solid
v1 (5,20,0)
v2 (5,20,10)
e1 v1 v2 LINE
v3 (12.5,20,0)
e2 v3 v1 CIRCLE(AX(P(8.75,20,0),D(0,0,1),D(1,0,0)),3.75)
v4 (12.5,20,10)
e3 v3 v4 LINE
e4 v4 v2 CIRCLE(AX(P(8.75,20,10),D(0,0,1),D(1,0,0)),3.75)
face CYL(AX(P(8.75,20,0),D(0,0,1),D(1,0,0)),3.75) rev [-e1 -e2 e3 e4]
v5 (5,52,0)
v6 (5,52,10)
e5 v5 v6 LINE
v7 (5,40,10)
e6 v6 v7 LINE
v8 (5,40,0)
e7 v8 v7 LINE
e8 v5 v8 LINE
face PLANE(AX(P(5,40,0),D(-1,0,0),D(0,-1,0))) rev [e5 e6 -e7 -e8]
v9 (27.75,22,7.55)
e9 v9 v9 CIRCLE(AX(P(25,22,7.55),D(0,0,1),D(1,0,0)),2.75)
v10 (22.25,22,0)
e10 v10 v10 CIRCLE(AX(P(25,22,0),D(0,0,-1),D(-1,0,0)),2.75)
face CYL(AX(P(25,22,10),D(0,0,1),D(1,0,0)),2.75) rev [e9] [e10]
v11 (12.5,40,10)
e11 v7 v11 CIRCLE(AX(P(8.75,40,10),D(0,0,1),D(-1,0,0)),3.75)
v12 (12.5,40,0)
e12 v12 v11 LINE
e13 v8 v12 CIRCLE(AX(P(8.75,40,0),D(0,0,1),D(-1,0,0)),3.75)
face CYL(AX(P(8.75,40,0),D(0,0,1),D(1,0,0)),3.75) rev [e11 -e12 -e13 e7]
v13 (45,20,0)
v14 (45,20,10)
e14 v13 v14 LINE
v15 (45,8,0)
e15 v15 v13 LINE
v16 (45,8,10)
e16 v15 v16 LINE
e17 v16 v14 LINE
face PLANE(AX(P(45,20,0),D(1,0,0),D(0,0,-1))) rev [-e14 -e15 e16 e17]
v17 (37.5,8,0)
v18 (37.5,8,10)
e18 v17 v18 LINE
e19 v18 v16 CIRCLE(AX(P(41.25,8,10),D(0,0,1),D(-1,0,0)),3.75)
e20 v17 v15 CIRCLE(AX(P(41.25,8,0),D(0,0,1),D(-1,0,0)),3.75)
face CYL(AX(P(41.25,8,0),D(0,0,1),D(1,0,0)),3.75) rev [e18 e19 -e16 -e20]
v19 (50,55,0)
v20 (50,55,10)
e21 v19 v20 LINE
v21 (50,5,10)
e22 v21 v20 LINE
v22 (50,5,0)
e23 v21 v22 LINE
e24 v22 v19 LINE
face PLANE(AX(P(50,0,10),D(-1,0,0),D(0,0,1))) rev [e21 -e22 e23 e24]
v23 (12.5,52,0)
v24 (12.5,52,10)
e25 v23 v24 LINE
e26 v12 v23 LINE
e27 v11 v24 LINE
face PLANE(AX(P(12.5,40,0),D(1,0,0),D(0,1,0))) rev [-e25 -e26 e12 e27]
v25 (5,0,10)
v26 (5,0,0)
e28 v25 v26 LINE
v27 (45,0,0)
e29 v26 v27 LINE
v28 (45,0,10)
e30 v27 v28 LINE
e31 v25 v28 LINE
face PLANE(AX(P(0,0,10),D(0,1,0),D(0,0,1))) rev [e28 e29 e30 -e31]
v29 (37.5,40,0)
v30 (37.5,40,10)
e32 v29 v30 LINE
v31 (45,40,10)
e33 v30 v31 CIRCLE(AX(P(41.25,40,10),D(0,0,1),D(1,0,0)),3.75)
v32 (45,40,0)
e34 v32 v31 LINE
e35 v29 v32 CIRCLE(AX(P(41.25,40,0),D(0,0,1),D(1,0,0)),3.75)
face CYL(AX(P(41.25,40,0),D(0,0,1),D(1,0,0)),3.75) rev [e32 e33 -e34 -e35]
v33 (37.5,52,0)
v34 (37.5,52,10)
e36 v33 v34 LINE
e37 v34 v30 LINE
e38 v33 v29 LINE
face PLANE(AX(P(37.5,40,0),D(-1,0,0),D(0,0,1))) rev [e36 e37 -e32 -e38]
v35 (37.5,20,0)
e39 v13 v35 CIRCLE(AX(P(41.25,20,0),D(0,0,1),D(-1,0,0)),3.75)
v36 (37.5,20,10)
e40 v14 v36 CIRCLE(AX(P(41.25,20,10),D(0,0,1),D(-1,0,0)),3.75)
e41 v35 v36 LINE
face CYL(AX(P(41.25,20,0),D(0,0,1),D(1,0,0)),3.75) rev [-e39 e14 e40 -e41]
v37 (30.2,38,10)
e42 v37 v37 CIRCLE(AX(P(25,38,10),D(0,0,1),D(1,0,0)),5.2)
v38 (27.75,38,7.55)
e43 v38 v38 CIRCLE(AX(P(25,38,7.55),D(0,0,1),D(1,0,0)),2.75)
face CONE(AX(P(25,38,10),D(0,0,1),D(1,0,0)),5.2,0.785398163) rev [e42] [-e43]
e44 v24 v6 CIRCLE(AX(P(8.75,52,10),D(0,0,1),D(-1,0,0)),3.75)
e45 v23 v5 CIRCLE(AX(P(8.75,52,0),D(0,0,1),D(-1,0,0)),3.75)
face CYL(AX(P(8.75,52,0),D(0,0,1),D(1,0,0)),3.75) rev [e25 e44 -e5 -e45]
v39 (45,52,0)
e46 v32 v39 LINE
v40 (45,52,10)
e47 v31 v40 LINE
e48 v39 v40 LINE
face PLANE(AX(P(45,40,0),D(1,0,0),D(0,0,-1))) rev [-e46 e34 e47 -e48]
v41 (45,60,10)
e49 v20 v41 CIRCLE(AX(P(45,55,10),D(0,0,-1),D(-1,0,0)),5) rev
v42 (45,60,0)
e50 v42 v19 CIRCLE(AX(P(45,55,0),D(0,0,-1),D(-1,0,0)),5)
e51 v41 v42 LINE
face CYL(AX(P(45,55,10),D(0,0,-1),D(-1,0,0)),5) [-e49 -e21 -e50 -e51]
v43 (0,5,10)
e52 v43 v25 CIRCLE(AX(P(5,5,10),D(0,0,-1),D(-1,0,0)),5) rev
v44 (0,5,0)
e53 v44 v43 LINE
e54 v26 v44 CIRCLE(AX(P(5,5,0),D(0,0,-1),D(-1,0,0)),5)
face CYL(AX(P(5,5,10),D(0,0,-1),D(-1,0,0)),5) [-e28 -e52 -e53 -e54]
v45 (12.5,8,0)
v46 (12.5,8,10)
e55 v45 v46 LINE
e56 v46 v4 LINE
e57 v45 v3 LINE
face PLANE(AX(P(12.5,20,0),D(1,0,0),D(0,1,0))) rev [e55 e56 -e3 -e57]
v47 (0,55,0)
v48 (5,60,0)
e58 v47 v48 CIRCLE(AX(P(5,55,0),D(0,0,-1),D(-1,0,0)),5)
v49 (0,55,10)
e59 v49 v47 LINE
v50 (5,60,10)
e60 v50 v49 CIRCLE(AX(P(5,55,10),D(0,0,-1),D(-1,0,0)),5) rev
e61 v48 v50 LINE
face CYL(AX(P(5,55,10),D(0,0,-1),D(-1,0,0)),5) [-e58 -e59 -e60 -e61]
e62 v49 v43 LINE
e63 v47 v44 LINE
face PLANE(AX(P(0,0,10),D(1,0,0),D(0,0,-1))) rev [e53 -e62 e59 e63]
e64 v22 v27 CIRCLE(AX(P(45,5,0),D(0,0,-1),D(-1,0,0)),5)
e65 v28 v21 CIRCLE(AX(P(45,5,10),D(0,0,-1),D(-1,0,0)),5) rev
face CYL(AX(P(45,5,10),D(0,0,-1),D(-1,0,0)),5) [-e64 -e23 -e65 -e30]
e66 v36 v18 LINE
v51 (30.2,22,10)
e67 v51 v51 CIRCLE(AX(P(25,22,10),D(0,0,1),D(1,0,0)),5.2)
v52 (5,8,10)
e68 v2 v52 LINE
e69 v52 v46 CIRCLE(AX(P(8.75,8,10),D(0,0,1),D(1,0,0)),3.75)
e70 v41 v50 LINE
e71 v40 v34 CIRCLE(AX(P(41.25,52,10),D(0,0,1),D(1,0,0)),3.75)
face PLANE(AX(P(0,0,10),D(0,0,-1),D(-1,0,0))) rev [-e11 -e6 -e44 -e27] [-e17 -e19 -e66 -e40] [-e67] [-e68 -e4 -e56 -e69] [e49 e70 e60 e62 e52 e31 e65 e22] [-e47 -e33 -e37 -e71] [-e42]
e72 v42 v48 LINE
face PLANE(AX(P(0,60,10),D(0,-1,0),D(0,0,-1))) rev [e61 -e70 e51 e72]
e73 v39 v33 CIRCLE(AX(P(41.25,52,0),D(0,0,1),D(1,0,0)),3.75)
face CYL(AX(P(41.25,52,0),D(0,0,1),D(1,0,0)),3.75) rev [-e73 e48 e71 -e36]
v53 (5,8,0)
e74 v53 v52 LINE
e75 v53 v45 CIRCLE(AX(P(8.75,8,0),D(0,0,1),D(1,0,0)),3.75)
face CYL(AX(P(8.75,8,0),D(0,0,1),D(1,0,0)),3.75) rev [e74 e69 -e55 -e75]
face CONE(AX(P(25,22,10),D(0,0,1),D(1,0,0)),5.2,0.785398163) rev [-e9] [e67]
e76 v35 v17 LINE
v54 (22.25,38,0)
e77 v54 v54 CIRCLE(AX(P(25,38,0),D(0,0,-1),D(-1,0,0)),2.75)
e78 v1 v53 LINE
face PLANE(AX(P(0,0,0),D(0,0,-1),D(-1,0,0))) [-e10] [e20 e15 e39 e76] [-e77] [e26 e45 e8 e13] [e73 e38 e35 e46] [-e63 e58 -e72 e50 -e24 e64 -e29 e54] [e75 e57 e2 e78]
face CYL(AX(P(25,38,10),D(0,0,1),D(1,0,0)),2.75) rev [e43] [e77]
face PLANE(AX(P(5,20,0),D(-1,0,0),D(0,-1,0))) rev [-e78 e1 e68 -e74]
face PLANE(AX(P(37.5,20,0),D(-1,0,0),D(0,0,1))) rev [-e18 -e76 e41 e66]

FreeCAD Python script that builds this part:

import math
import FreeCAD as App
import Part
import Sketcher
Q = App.Units.Quantity


def edges_at(feature, points):
    """Names of the edges that pass closest to the given points."""
    edges = feature.Shape.Edges
    near = lambda p: min(range(len(edges)), key=lambda i: edges[i].distToShape(Part.Vertex(*p))[0])
    return sorted({f"Edge{near(p) + 1}" for p in points})

doc = App.newDocument("Part")
body = doc.addObject("PartDesign::Body", "Body")

# Sketch on XY plane
sketch1 = body.newObject("Sketcher::SketchObject", "Sketch")
sketch1.AttachmentSupport = (doc.getObject("XY_Plane"), [""])
sketch1.MapMode = "FlatFace"
sketch1.addGeometry([
    Part.LineSegment(App.Vector(0, 60, 0), App.Vector(0, 0, 0)),
    Part.LineSegment(App.Vector(0, 0, 0), App.Vector(50, 0, 0)),
    Part.LineSegment(App.Vector(50, 0, 0), App.Vector(50, 60, 0)),
    Part.LineSegment(App.Vector(50, 60, 0), App.Vector(0, 60, 0)),
], False)
sketch1.addConstraint([
    Sketcher.Constraint("Coincident", 0, 2, 1, 1),
    Sketcher.Constraint("Coincident", 1, 2, 2, 1),
    Sketcher.Constraint("Coincident", 2, 2, 3, 1),
    Sketcher.Constraint("Coincident", 3, 2, 0, 1),
    Sketcher.Constraint("Vertical", 0),
    Sketcher.Constraint("Horizontal", 1),
    Sketcher.Constraint("Vertical", 2),
    Sketcher.Constraint("Horizontal", 3),
    Sketcher.Constraint("Coincident", 0, 2, -1, 1),
    Sketcher.Constraint("DistanceX", 1, 1, 1, 2, Q("50 mm")),
    Sketcher.Constraint("DistanceY", 0, 2, 0, 1, Q("60 mm")),
])
pad1 = body.newObject("PartDesign::Pad", "Pad")
pad1.Profile = sketch1
pad1.Length = 10
doc.recompute()

fillet = body.newObject("PartDesign::Fillet", "Fillet")
fillet.Base = (pad1, edges_at(pad1, [
    (0, 60, 5),
    (50, 60, 5),
    (50, 0, 5),
    (0, 0, 5),
]))
fillet.Radius = 5

# Sketch on XY plane
sketch2 = body.newObject("Sketcher::SketchObject", "Sketch001")
sketch2.AttachmentSupport = (doc.getObject("XY_Plane"), [""])
sketch2.MapMode = "FlatFace"
sketch2.AttachmentOffset = App.Placement(App.Vector(0, 0, 10), App.Rotation())
sketch2.addGeometry([
    Part.LineSegment(App.Vector(12.5, 8, 0), App.Vector(12.5, 20, 0)),  # 0
    Part.ArcOfCircle(Part.Circle(App.Vector(8.75, 20, 0), App.Vector(0, 0, 1), 3.75), math.radians(0), math.radians(180)),  # 1
    Part.LineSegment(App.Vector(5, 20, 0), App.Vector(5, 8, 0)),  # 2
    Part.ArcOfCircle(Part.Circle(App.Vector(8.75, 8, 0), App.Vector(0, 0, 1), 3.75), math.radians(180), math.radians(360)),  # 3
    Part.LineSegment(App.Vector(37.5, 52, 0), App.Vector(37.5, 40, 0)),  # 4
    Part.ArcOfCircle(Part.Circle(App.Vector(41.25, 40, 0), App.Vector(0, 0, 1), 3.75), math.radians(180), math.radians(360)),  # 5
    Part.LineSegment(App.Vector(45, 40, 0), App.Vector(45, 52, 0)),  # 6
    Part.ArcOfCircle(Part.Circle(App.Vector(41.25, 52, 0), App.Vector(0, 0, 1), 3.75), math.radians(0), math.radians(180)),  # 7
    Part.LineSegment(App.Vector(37.5, 20, 0), App.Vector(37.5, 8, 0)),  # 8
    Part.ArcOfCircle(Part.Circle(App.Vector(41.25, 8, 0), App.Vector(0, 0, 1), 3.75), math.radians(180), math.radians(360)),  # 9
    Part.LineSegment(App.Vector(45, 8, 0), App.Vector(45, 20, 0)),  # 10
    Part.ArcOfCircle(Part.Circle(App.Vector(41.25, 20, 0), App.Vector(0, 0, 1), 3.75), math.radians(0), math.radians(180)),  # 11
    Part.LineSegment(App.Vector(12.5, 40, 0), App.Vector(12.5, 52, 0)),  # 12
    Part.ArcOfCircle(Part.Circle(App.Vector(8.75, 52, 0), App.Vector(0, 0, 1), 3.75), math.radians(0), math.radians(180)),  # 13
    Part.LineSegment(App.Vector(5, 52, 0), App.Vector(5, 40, 0)),  # 14
    Part.ArcOfCircle(Part.Circle(App.Vector(8.75, 40, 0), App.Vector(0, 0, 1), 3.75), math.radians(180), math.radians(360)),  # 15
], False)
sketch2.addConstraint([
    Sketcher.Constraint("Tangent", 0, 2, 1, 1),
    Sketcher.Constraint("Tangent", 1, 2, 2, 1),
    Sketcher.Constraint("Tangent", 2, 2, 3, 1),
    Sketcher.Constraint("Tangent", 3, 2, 0, 1),
    Sketcher.Constraint("Tangent", 4, 2, 5, 1),
    Sketcher.Constraint("Tangent", 5, 2, 6, 1),
    Sketcher.Constraint("Tangent", 6, 2, 7, 1),
    Sketcher.Constraint("Tangent", 7, 2, 4, 1),
    Sketcher.Constraint("Tangent", 8, 2, 9, 1),
    Sketcher.Constraint("Tangent", 9, 2, 10, 1),
    Sketcher.Constraint("Tangent", 10, 2, 11, 1),
    Sketcher.Constraint("Tangent", 11, 2, 8, 1),
    Sketcher.Constraint("Tangent", 12, 2, 13, 1),
    Sketcher.Constraint("Tangent", 13, 2, 14, 1),
    Sketcher.Constraint("Tangent", 14, 2, 15, 1),
    Sketcher.Constraint("Tangent", 15, 2, 12, 1),
    Sketcher.Constraint("Vertical", 0),
    Sketcher.Constraint("Vertical", 2),
    Sketcher.Constraint("Vertical", 4),
    Sketcher.Constraint("Vertical", 6),
    Sketcher.Constraint("Vertical", 8),
    Sketcher.Constraint("Vertical", 10),
    Sketcher.Constraint("Vertical", 12),
    Sketcher.Constraint("Vertical", 14),
    Sketcher.Constraint("Equal", 3, 5),
    Sketcher.Constraint("Equal", 7, 9),
    Sketcher.Constraint("Equal", 11, 13),
    Sketcher.Constraint("Horizontal", 3, 3, 9, 3),
    Sketcher.Constraint("Horizontal", 1, 3, 11, 3),
    Sketcher.Constraint("Horizontal", 7, 3, 13, 3),
    Sketcher.Constraint("Horizontal", 5, 3, 15, 3),
    Sketcher.Constraint("Vertical", 7, 3, 9, 3),
    Sketcher.Constraint("Vertical", 3, 3, 13, 3),
    Sketcher.Constraint("Equal", 2, 4),
    Sketcher.Constraint("DistanceY", 0, 1, 0, 2, Q("12 mm")),
    Sketcher.Constraint("Radius", 1, Q("3.75 mm")),
    Sketcher.Constraint("DistanceY", -1, 1, 1, 3, Q("20 mm")),
    Sketcher.Constraint("DistanceY", -1, 1, 5, 3, Q("40 mm")),
    Sketcher.Constraint("DistanceX", -1, 1, 1, 2, Q("5 mm")),
    Sketcher.Constraint("DistanceX", -1, 1, 5, 2, Q("45 mm")),
])
pocket1 = body.newObject("PartDesign::Pocket", "Pocket")
pocket1.Profile = sketch2
pocket1.Length = 10

# Sketch on XY plane
sketch3 = body.newObject("Sketcher::SketchObject", "Sketch002")
sketch3.AttachmentSupport = (doc.getObject("XY_Plane"), [""])
sketch3.MapMode = "FlatFace"
sketch3.AttachmentOffset = App.Placement(App.Vector(0, 0, 10), App.Rotation())
sketch3.addGeometry([
    Part.Circle(App.Vector(25, 38, 0), App.Vector(0, 0, 1), 2.75),
    Part.Circle(App.Vector(25, 22, 0), App.Vector(0, 0, 1), 2.75),
], False)
sketch3.addConstraint([
    Sketcher.Constraint("Equal", 0, 1),
    Sketcher.Constraint("Vertical", 0, 3, 1, 3),
    Sketcher.Constraint("Diameter", 0, Q("5.5 mm")),
    Sketcher.Constraint("DistanceX", -1, 1, 0, 3, Q("25 mm")),
    Sketcher.Constraint("DistanceY", -1, 1, 0, 3, Q("38 mm")),
    Sketcher.Constraint("DistanceY", -1, 1, 1, 3, Q("22 mm")),
])
doc.recompute()
hole = body.newObject("PartDesign::Hole", "Hole")
hole.Profile = sketch3
hole.ThreadType = "None"
hole.Diameter = 5.5
hole.DepthType = "Dimension"
hole.Depth = 30
hole.DrillPoint = "Angled"
hole.DrillPointAngle = 118
hole.HoleCutType = "Countersink"
hole.HoleCutDiameter = 10.4
hole.HoleCutCountersinkAngle = 90

doc.recompute()
